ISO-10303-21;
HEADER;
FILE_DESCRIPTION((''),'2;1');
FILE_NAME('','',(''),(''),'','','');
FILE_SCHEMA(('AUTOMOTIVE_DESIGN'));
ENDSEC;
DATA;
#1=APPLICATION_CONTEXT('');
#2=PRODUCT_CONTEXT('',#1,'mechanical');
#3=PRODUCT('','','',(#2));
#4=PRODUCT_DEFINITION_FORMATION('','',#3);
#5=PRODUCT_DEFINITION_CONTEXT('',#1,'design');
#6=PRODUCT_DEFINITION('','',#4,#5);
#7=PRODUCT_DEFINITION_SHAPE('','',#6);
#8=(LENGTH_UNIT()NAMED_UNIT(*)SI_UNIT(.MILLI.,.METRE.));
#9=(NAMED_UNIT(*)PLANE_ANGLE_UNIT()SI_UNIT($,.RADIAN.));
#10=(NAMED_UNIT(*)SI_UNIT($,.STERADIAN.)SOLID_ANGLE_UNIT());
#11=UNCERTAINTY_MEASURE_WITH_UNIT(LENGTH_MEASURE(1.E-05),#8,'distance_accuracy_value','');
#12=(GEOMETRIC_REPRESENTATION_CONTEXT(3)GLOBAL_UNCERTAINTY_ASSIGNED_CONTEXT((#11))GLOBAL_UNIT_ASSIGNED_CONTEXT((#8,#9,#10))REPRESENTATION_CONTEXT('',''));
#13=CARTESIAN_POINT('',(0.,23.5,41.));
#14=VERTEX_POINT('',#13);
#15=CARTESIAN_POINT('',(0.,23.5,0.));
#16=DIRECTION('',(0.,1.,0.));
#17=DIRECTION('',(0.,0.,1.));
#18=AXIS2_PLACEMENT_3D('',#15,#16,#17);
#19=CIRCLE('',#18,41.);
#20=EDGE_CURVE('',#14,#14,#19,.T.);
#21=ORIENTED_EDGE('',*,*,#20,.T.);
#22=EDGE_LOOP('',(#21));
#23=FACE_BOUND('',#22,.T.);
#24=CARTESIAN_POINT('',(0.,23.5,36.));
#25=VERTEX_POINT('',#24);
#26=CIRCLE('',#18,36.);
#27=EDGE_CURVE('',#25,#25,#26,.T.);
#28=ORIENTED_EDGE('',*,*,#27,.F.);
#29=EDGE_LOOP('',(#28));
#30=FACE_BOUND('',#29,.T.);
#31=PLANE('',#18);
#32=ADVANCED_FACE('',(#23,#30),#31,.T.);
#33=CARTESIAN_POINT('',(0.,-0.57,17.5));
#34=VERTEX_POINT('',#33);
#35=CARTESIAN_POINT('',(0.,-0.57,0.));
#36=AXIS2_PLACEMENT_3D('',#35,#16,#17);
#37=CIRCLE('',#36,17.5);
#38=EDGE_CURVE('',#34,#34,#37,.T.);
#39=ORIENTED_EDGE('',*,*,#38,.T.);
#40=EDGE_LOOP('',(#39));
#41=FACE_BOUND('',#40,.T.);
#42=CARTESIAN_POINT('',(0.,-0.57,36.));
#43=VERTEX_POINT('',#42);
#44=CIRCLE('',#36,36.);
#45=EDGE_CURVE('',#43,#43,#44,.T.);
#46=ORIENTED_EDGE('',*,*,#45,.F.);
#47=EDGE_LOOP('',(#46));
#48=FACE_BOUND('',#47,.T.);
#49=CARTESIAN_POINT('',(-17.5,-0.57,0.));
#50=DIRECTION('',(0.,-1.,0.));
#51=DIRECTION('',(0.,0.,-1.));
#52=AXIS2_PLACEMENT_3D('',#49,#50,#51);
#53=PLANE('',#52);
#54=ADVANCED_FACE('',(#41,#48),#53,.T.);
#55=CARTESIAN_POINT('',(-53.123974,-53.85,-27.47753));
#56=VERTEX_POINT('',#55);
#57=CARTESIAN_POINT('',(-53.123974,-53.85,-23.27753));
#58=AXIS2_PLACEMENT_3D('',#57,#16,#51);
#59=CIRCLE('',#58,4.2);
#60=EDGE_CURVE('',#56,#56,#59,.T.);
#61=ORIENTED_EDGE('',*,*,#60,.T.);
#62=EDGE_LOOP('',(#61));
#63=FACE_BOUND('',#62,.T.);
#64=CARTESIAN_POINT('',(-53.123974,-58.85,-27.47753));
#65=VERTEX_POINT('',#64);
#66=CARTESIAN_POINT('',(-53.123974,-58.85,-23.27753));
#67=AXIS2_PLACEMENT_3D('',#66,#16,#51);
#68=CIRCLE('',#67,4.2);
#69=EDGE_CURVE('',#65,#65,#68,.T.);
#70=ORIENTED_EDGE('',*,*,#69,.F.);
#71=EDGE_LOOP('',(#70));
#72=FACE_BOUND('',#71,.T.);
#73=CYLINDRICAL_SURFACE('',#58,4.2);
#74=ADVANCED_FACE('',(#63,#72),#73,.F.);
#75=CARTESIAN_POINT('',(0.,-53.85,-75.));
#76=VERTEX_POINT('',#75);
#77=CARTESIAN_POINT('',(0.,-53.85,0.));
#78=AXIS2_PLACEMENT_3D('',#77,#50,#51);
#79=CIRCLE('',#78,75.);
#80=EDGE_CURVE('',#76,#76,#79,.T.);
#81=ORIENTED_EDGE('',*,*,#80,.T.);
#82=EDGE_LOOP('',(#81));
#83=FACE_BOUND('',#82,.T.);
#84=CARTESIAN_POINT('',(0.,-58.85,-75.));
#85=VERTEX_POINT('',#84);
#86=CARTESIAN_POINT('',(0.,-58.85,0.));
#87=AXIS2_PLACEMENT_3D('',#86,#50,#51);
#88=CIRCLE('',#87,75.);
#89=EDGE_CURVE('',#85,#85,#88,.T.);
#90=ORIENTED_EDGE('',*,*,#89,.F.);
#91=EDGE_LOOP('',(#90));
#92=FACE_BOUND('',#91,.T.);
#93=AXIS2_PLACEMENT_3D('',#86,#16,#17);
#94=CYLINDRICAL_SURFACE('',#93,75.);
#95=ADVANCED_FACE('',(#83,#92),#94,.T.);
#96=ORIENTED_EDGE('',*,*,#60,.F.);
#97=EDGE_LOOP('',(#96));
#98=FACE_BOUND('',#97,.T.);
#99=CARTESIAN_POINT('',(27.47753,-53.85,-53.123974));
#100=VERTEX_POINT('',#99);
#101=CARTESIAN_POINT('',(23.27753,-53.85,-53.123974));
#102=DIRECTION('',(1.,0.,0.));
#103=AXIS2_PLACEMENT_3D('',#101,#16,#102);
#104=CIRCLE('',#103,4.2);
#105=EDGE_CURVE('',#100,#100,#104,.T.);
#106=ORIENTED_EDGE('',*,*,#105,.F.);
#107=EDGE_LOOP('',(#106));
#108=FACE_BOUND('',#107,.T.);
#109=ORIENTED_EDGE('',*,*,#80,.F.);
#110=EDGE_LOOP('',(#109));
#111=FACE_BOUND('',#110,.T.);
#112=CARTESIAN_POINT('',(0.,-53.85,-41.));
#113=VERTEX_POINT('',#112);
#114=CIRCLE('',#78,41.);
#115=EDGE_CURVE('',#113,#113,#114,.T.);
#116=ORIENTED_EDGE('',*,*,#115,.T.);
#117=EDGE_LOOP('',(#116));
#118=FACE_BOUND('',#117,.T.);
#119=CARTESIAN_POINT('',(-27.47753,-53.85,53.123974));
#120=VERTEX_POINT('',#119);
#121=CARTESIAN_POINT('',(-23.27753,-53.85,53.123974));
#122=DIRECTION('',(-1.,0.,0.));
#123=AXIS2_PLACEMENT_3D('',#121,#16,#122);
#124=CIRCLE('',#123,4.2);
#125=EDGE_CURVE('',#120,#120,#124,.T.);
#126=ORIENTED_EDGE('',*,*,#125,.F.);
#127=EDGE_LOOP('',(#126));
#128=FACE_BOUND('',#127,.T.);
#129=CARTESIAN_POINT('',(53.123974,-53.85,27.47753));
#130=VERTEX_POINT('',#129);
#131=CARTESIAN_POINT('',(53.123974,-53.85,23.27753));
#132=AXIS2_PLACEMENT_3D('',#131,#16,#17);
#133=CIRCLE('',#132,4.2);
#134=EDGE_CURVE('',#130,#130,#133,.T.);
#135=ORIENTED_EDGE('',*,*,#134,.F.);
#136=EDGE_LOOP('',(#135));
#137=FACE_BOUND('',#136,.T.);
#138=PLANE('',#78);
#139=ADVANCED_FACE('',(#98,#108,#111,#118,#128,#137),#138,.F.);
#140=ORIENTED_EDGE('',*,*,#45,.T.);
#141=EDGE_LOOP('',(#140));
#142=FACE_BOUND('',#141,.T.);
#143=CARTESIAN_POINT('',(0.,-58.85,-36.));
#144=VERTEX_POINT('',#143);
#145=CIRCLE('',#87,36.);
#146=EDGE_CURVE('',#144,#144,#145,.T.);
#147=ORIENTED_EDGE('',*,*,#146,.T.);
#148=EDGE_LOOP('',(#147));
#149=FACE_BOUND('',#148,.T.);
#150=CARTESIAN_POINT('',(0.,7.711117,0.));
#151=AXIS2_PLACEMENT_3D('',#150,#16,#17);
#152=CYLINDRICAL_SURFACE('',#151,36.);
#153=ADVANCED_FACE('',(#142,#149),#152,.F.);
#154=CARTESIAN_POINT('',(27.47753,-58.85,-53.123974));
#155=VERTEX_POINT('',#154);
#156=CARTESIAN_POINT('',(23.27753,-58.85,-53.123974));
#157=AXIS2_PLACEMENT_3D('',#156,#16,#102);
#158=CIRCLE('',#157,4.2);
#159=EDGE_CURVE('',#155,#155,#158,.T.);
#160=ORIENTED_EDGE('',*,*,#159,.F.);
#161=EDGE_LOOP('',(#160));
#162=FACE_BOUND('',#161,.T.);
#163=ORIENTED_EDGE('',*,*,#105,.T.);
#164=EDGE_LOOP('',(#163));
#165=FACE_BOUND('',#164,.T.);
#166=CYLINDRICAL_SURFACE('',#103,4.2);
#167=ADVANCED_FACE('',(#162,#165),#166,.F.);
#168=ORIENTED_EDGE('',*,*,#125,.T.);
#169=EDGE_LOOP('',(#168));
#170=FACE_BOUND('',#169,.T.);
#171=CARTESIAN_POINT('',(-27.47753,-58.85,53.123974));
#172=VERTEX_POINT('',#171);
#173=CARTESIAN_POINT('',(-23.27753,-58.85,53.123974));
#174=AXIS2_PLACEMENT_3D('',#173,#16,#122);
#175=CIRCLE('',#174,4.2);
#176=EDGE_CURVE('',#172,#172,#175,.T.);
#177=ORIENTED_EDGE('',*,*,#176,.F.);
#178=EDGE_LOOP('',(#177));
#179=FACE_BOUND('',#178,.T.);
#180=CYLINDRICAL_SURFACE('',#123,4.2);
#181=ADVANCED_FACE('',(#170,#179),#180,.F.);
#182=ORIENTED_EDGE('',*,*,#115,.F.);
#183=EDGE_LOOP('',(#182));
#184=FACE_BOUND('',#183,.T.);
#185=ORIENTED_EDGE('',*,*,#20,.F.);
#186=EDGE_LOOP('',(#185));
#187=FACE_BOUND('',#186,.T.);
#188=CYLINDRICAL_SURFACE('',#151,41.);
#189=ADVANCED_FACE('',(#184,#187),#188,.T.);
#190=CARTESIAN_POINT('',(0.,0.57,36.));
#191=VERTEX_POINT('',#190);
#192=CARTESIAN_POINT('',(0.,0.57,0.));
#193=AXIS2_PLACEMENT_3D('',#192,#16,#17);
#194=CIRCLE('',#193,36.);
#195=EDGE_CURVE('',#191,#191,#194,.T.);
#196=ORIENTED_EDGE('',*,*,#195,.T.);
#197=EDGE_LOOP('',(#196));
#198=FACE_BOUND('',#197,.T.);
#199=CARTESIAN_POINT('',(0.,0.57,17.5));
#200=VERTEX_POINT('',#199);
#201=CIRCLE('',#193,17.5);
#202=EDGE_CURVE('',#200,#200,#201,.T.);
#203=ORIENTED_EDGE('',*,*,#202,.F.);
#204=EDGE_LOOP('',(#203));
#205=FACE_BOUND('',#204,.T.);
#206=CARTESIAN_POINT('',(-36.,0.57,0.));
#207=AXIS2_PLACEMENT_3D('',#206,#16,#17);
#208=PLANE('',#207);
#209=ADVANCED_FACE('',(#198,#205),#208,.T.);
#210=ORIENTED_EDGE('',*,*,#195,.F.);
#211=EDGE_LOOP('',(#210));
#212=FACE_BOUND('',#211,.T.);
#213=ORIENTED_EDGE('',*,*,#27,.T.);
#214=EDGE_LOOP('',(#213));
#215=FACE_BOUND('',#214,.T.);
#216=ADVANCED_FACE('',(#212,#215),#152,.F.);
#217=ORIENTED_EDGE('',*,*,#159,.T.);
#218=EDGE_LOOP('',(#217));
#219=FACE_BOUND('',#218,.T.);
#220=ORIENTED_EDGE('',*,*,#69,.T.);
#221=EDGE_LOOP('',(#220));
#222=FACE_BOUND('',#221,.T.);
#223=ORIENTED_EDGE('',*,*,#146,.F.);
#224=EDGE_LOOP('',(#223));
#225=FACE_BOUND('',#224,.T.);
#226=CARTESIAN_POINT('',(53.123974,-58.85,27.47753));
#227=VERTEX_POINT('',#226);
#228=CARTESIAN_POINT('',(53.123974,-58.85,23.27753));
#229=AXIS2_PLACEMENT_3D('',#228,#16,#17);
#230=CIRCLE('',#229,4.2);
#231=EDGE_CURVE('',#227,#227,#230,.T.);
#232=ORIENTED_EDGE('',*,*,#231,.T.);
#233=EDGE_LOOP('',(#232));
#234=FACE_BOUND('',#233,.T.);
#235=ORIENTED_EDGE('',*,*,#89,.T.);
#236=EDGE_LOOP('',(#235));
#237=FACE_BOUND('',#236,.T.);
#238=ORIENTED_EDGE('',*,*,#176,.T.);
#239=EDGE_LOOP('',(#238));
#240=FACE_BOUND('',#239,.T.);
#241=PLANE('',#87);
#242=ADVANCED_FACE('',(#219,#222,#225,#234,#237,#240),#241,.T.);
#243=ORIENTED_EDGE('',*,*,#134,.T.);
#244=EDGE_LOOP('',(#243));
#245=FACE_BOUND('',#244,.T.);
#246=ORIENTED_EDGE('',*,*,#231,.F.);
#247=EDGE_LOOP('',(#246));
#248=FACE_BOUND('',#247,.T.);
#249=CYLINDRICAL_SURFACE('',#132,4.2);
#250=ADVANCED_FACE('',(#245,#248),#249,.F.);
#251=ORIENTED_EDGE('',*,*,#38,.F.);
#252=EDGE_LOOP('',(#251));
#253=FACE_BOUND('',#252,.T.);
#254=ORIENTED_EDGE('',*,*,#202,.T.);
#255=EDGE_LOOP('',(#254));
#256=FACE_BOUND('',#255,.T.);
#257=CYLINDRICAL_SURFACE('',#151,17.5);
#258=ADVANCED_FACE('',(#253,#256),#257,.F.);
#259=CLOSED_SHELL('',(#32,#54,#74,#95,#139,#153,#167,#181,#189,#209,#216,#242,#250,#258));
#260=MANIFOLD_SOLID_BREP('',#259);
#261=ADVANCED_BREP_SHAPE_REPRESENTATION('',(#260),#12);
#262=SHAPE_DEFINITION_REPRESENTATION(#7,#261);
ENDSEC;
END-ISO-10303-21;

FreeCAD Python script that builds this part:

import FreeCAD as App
import Part
import Sketcher
Q = App.Units.Quantity

doc = App.newDocument("Part")
body = doc.addObject("PartDesign::Body", "Body")

# Sketch on XY plane
sketch1 = body.newObject("Sketcher::SketchObject", "Sketch")
sketch1.AttachmentSupport = (doc.getObject("XY_Plane"), [""])
sketch1.MapMode = "FlatFace"
sketch1.addGeometry(Part.LineSegment(App.Vector(-17.5, -0.57, 0), App.Vector(-17.5, 0.57, 0)), False)
sketch1.addGeometry(Part.LineSegment(App.Vector(-17.5, 0.57, 0), App.Vector(-36, 0.57, 0)), False)
sketch1.addGeometry(Part.LineSegment(App.Vector(-36, 0.57, 0), App.Vector(-36, 50, 0)), False)
sketch1.addGeometry(Part.LineSegment(App.Vector(-36, 50, 0), App.Vector(-41, 50, 0)), False)
sketch1.addGeometry(Part.LineSegment(App.Vector(-41, 50, 0), App.Vector(-41, -50, 0)), False)
sketch1.addGeometry(Part.LineSegment(App.Vector(-41, -50, 0), App.Vector(-36, -50, 0)), False)
sketch1.addGeometry(Part.LineSegment(App.Vector(-36, -50, 0), App.Vector(-36, -0.57, 0)), False)
sketch1.addGeometry(Part.LineSegment(App.Vector(-36, -0.57, 0), App.Vector(-17.5, -0.57, 0)), False)
sketch1.addConstraint(Sketcher.Constraint("Coincident", 0, 2, 1, 1))
sketch1.addConstraint(Sketcher.Constraint("Coincident", 1, 2, 2, 1))
sketch1.addConstraint(Sketcher.Constraint("Coincident", 2, 2, 3, 1))
sketch1.addConstraint(Sketcher.Constraint("Coincident", 3, 2, 4, 1))
sketch1.addConstraint(Sketcher.Constraint("Coincident", 4, 2, 5, 1))
sketch1.addConstraint(Sketcher.Constraint("Coincident", 5, 2, 6, 1))
sketch1.addConstraint(Sketcher.Constraint("Coincident", 6, 2, 7, 1))
sketch1.addConstraint(Sketcher.Constraint("Coincident", 7, 2, 0, 1))
sketch1.addConstraint(Sketcher.Constraint("Vertical", 0))
sketch1.addConstraint(Sketcher.Constraint("Horizontal", 1))
sketch1.addConstraint(Sketcher.Constraint("Vertical", 2))
sketch1.addConstraint(Sketcher.Constraint("Horizontal", 3))
sketch1.addConstraint(Sketcher.Constraint("Vertical", 4))
sketch1.addConstraint(Sketcher.Constraint("Horizontal", 5))
sketch1.addConstraint(Sketcher.Constraint("Vertical", 6))
sketch1.addConstraint(Sketcher.Constraint("Horizontal", 7))
sketch1.addConstraint(Sketcher.Constraint("Symmetric", 2, 2, 5, 2, -1))
sketch1.addConstraint(Sketcher.Constraint("Equal", 2, 6))
sketch1.addConstraint(Sketcher.Constraint("DistanceX", 3, 2, 3, 1, Q("5 mm")))
sketch1.addConstraint(Sketcher.Constraint("DistanceY", 4, 2, 4, 1, Q("100 mm")))
sketch1.addConstraint(Sketcher.Constraint("DistanceX", 1, 2, 1, 1, Q("18.5 mm")))
sketch1.addConstraint(Sketcher.Constraint("DistanceX", 1, 2, -1, 1, Q("36 mm")))
sketch1.addConstraint(Sketcher.Constraint("DistanceY", 0, 1, 0, 2, Q("1.14 mm")))
revolution = body.newObject("PartDesign::Revolution", "Revolution")
revolution.Profile = sketch1
revolution.ReferenceAxis = (sketch1, ["V_Axis"])
revolution.Angle = 360

# Sketch on XZ plane
sketch2 = body.newObject("Sketcher::SketchObject", "Sketch001")
sketch2.AttachmentSupport = (doc.getObject("XZ_Plane"), [""])
sketch2.MapMode = "FlatFace"
sketch2.AttachmentOffset = App.Placement(App.Vector(0, 0, 53.85), App.Rotation())
sketch2.addGeometry(Part.Circle(App.Vector(0, 0, 0), App.Vector(0, 0, 1), 41), False)
sketch2.addGeometry(Part.Circle(App.Vector(0, 0, 0), App.Vector(0, 0, 1), 36), False)
sketch2.addConstraint(Sketcher.Constraint("Coincident", 0, 3, -1, 1))
sketch2.addConstraint(Sketcher.Constraint("Coincident", 1, 3, -1, 1))
sketch2.addConstraint(Sketcher.Constraint("Diameter", 0, Q("82 mm")))
sketch2.addConstraint(Sketcher.Constraint("Diameter", 1, Q("72 mm")))
pad1 = body.newObject("PartDesign::Pad", "Pad")
pad1.Profile = sketch2
pad1.Length = 3.85
pad1.Reversed = True

# Sketch on XZ plane
sketch3 = body.newObject("Sketcher::SketchObject", "Sketch002")
sketch3.AttachmentSupport = (doc.getObject("XZ_Plane"), [""])
sketch3.MapMode = "FlatFace"
sketch3.AttachmentOffset = App.Placement(App.Vector(0, 0, -23.5), App.Rotation())
sketch3.addGeometry(Part.Circle(App.Vector(0, 0, 0), App.Vector(0, 0, 1), 41), False)
sketch3.addGeometry(Part.Circle(App.Vector(0, 0, 0), App.Vector(0, 0, 1), 36), False)
sketch3.addConstraint(Sketcher.Constraint("Coincident", 0, 3, -1, 1))
sketch3.addConstraint(Sketcher.Constraint("Coincident", 1, 3, -1, 1))
sketch3.addConstraint(Sketcher.Constraint("Diameter", 0, Q("82 mm")))
sketch3.addConstraint(Sketcher.Constraint("Diameter", 1, Q("72 mm")))
pocket1 = body.newObject("PartDesign::Pocket", "Pocket")
pocket1.Profile = sketch3
pocket1.Length = 26.5

# Sketch on XZ plane
sketch4 = body.newObject("Sketcher::SketchObject", "Sketch003")
sketch4.AttachmentSupport = (doc.getObject("XZ_Plane"), [""])
sketch4.MapMode = "FlatFace"
sketch4.AttachmentOffset = App.Placement(App.Vector(0, 0, 58.85), App.Rotation())
sketch4.addGeometry(Part.Circle(App.Vector(0, 0, 0), App.Vector(0, 0, 1), 75), False)
sketch4.addGeometry(Part.Circle(App.Vector(0, 0, 0), App.Vector(0, 0, 1), 36), False)
sketch4.addConstraint(Sketcher.Constraint("Coincident", 0, 3, -1, 1))
sketch4.addConstraint(Sketcher.Constraint("Coincident", 1, 3, -1, 1))
sketch4.addConstraint(Sketcher.Constraint("Diameter", 0, Q("150 mm")))
sketch4.addConstraint(Sketcher.Constraint("Diameter", 1, Q("72 mm")))
pad2 = body.newObject("PartDesign::Pad", "Pad001")
pad2.Profile = sketch4
pad2.Length = 5
pad2.Reversed = True

# Sketch on XZ plane
sketch5 = body.newObject("Sketcher::SketchObject", "Sketch004")
sketch5.AttachmentSupport = (doc.getObject("XZ_Plane"), [""])
sketch5.MapMode = "FlatFace"
sketch5.AttachmentOffset = App.Placement(App.Vector(0, 0, 53.85), App.Rotation())
sketch5.addGeometry(Part.Circle(App.Vector(53.123974, 23.27753, 0), App.Vector(0, 0, 1), 4.2), False)
sketch5.addConstraint(Sketcher.Constraint("Diameter", 0, Q("8.4 mm")))
sketch5.addConstraint(Sketcher.Constraint("DistanceY", -1, 1, 0, 3, Q("23.27753 mm")))
sketch5.addConstraint(Sketcher.Constraint("DistanceX", -1, 1, 0, 3, Q("53.123974 mm")))
doc.recompute()
hole = body.newObject("PartDesign::Hole", "Hole")
hole.Profile = sketch5
hole.ThreadType = "None"
hole.Diameter = 8.4
hole.DepthType = "ThroughAll"
hole.Reversed = True
doc.recompute()

polarpattern = body.newObject("PartDesign::PolarPattern", "PolarPattern")
polarpattern.Originals = [hole]
polarpattern.Axis = (doc.getObject("Y_Axis"), [""])
polarpattern.Angle = 360
polarpattern.Occurrences = 4
body.Tip = polarpattern

doc.recompute()
